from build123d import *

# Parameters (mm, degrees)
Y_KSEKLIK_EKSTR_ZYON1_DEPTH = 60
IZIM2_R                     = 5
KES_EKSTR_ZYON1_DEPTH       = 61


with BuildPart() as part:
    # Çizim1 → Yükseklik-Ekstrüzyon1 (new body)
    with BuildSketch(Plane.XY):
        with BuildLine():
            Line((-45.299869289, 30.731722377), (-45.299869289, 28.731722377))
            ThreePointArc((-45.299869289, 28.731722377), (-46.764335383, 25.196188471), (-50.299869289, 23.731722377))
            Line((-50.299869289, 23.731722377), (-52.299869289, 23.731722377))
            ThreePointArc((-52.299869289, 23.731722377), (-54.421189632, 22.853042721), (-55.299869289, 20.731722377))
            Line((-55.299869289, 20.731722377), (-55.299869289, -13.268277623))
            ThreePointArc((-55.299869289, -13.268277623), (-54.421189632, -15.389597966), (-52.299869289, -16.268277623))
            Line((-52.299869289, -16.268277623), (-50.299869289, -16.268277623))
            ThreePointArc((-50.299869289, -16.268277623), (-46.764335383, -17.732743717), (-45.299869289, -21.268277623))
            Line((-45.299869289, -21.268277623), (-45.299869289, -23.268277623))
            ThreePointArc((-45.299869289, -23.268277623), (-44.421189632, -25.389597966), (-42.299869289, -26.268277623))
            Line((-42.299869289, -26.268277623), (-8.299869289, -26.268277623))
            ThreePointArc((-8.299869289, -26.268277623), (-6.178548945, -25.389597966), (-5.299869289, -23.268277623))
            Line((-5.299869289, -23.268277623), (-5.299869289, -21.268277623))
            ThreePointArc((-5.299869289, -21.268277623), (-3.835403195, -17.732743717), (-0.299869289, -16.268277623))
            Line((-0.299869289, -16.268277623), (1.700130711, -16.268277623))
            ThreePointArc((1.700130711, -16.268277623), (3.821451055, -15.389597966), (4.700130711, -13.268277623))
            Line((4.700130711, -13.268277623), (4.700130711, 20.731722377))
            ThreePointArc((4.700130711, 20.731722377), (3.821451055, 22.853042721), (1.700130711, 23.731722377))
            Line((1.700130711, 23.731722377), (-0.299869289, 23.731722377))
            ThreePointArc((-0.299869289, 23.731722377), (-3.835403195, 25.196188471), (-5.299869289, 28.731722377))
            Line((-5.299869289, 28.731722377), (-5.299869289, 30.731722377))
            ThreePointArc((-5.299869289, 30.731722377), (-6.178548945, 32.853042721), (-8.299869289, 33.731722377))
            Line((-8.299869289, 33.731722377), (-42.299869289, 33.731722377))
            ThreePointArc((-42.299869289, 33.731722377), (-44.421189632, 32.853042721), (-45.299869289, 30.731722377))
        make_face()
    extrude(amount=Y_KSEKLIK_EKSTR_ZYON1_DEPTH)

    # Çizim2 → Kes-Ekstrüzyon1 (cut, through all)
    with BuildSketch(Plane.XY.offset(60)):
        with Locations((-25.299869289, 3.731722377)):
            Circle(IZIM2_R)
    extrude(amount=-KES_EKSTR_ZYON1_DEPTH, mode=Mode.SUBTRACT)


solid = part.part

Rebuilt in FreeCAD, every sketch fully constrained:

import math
import FreeCAD as App
import Part
import Sketcher
from FreeCAD import Vector

doc = App.newDocument("Part")
body = doc.addObject("PartDesign::Body", "Body")

# Sketch on XY plane
sketch1 = body.newObject("Sketcher::SketchObject", "Sketch")
sketch1.AttachmentSupport = (doc.getObject("XY_Plane"), [""])
sketch1.MapMode = "FlatFace"
sketch1.addGeometry(Part.LineSegment(Vector(-45.3, 30.7, 0), Vector(-45.3, 28.7, 0)), False)
sketch1.addGeometry(Part.ArcOfCircle(Part.Circle(Vector(-50.3, 28.7, 0), Vector(0, 0, 1), 5), math.radians(-90), math.radians(0)), False)
sketch1.addGeometry(Part.LineSegment(Vector(-50.3, 23.7, 0), Vector(-52.3, 23.7, 0)), False)
sketch1.addGeometry(Part.ArcOfCircle(Part.Circle(Vector(-52.3, 20.7, 0), Vector(0, 0, 1), 3), math.radians(90), math.radians(180)), False)
sketch1.addGeometry(Part.LineSegment(Vector(-55.3, 20.7, 0), Vector(-55.3, -13.3, 0)), False)
sketch1.addGeometry(Part.ArcOfCircle(Part.Circle(Vector(-52.3, -13.3, 0), Vector(0, 0, 1), 3), math.radians(-180), math.radians(-90)), False)
sketch1.addGeometry(Part.LineSegment(Vector(-52.3, -16.3, 0), Vector(-50.3, -16.3, 0)), False)
sketch1.addGeometry(Part.ArcOfCircle(Part.Circle(Vector(-50.3, -21.3, 0), Vector(0, 0, 1), 5), math.radians(0), math.radians(90)), False)
sketch1.addGeometry(Part.LineSegment(Vector(-45.3, -21.3, 0), Vector(-45.3, -23.3, 0)), False)
sketch1.addGeometry(Part.ArcOfCircle(Part.Circle(Vector(-42.3, -23.3, 0), Vector(0, 0, 1), 3), math.radians(-180), math.radians(-90)), False)
sketch1.addGeometry(Part.LineSegment(Vector(-42.3, -26.3, 0), Vector(-8.3, -26.3, 0)), False)
sketch1.addGeometry(Part.ArcOfCircle(Part.Circle(Vector(-8.3, -23.3, 0), Vector(0, 0, 1), 3), math.radians(-90), math.radians(0)), False)
sketch1.addGeometry(Part.LineSegment(Vector(-5.3, -23.3, 0), Vector(-5.3, -21.3, 0)), False)
sketch1.addGeometry(Part.ArcOfCircle(Part.Circle(Vector(-0.3, -21.3, 0), Vector(0, 0, 1), 5), math.radians(90), math.radians(180)), False)
sketch1.addGeometry(Part.LineSegment(Vector(-0.3, -16.3, 0), Vector(1.7, -16.3, 0)), False)
sketch1.addGeometry(Part.ArcOfCircle(Part.Circle(Vector(1.7, -13.3, 0), Vector(0, 0, 1), 3), math.radians(-90), math.radians(0)), False)
sketch1.addGeometry(Part.LineSegment(Vector(4.7, -13.3, 0), Vector(4.7, 20.7, 0)), False)
sketch1.addGeometry(Part.ArcOfCircle(Part.Circle(Vector(1.7, 20.7, 0), Vector(0, 0, 1), 3), math.radians(0), math.radians(90)), False)
sketch1.addGeometry(Part.LineSegment(Vector(1.7, 23.7, 0), Vector(-0.3, 23.7, 0)), False)
sketch1.addGeometry(Part.ArcOfCircle(Part.Circle(Vector(-0.3, 28.7, 0), Vector(0, 0, 1), 5), math.radians(180), math.radians(270)), False)
sketch1.addGeometry(Part.LineSegment(Vector(-5.3, 28.7, 0), Vector(-5.3, 30.7, 0)), False)
sketch1.addGeometry(Part.ArcOfCircle(Part.Circle(Vector(-8.3, 30.7, 0), Vector(0, 0, 1), 3), math.radians(0), math.radians(90)), False)
sketch1.addGeometry(Part.LineSegment(Vector(-8.3, 33.7, 0), Vector(-42.3, 33.7, 0)), False)
sketch1.addGeometry(Part.ArcOfCircle(Part.Circle(Vector(-42.3, 30.7, 0), Vector(0, 0, 1), 3), math.radians(90), math.radians(180)), False)
sketch1.addConstraint(Sketcher.Constraint("Tangent", 0, 2, 1, 2))
sketch1.addConstraint(Sketcher.Constraint("Tangent", 1, 1, 2, 1))
sketch1.addConstraint(Sketcher.Constraint("Tangent", 2, 2, 3, 1))
sketch1.addConstraint(Sketcher.Constraint("Tangent", 3, 2, 4, 1))
sketch1.addConstraint(Sketcher.Constraint("Tangent", 4, 2, 5, 1))
sketch1.addConstraint(Sketcher.Constraint("Tangent", 5, 2, 6, 1))
sketch1.addConstraint(Sketcher.Constraint("Tangent", 6, 2, 7, 2))
sketch1.addConstraint(Sketcher.Constraint("Tangent", 7, 1, 8, 1))
sketch1.addConstraint(Sketcher.Constraint("Tangent", 8, 2, 9, 1))
sketch1.addConstraint(Sketcher.Constraint("Tangent", 9, 2, 10, 1))
sketch1.addConstraint(Sketcher.Constraint("Tangent", 10, 2, 11, 1))
sketch1.addConstraint(Sketcher.Constraint("Tangent", 11, 2, 12, 1))
sketch1.addConstraint(Sketcher.Constraint("Tangent", 12, 2, 13, 2))
sketch1.addConstraint(Sketcher.Constraint("Tangent", 13, 1, 14, 1))
sketch1.addConstraint(Sketcher.Constraint("Tangent", 14, 2, 15, 1))
sketch1.addConstraint(Sketcher.Constraint("Tangent", 15, 2, 16, 1))
sketch1.addConstraint(Sketcher.Constraint("Tangent", 16, 2, 17, 1))
sketch1.addConstraint(Sketcher.Constraint("Tangent", 17, 2, 18, 1))
sketch1.addConstraint(Sketcher.Constraint("Tangent", 18, 2, 19, 2))
sketch1.addConstraint(Sketcher.Constraint("Tangent", 19, 1, 20, 1))
sketch1.addConstraint(Sketcher.Constraint("Tangent", 20, 2, 21, 1))
sketch1.addConstraint(Sketcher.Constraint("Tangent", 21, 2, 22, 1))
sketch1.addConstraint(Sketcher.Constraint("Tangent", 22, 2, 23, 1))
sketch1.addConstraint(Sketcher.Constraint("Tangent", 23, 2, 0, 1))
sketch1.addConstraint(Sketcher.Constraint("Vertical", 0))
sketch1.addConstraint(Sketcher.Constraint("Horizontal", 2))
sketch1.addConstraint(Sketcher.Constraint("Vertical", 4))
sketch1.addConstraint(Sketcher.Constraint("Horizontal", 6))
sketch1.addConstraint(Sketcher.Constraint("Vertical", 8))
sketch1.addConstraint(Sketcher.Constraint("Horizontal", 10))
sketch1.addConstraint(Sketcher.Constraint("Vertical", 12))
sketch1.addConstraint(Sketcher.Constraint("Horizontal", 14))
sketch1.addConstraint(Sketcher.Constraint("Vertical", 16))
sketch1.addConstraint(Sketcher.Constraint("Horizontal", 18))
sketch1.addConstraint(Sketcher.Constraint("Vertical", 20))
sketch1.addConstraint(Sketcher.Constraint("Horizontal", 22))
sketch1.addConstraint(Sketcher.Constraint("Equal", 3, 5))
sketch1.addConstraint(Sketcher.Constraint("Equal", 1, 7))
sketch1.addConstraint(Sketcher.Constraint("Equal", 5, 9))
sketch1.addConstraint(Sketcher.Constraint("Equal", 9, 11))
sketch1.addConstraint(Sketcher.Constraint("Equal", 7, 13))
sketch1.addConstraint(Sketcher.Constraint("Equal", 11, 15))
sketch1.addConstraint(Sketcher.Constraint("Equal", 15, 17))
sketch1.addConstraint(Sketcher.Constraint("Equal", 13, 19))
sketch1.addConstraint(Sketcher.Constraint("Equal", 17, 21))
sketch1.addConstraint(Sketcher.Constraint("Equal", 21, 23))
sketch1.addConstraint(Sketcher.Constraint("Horizontal", 7, 3, 13, 3))
sketch1.addConstraint(Sketcher.Constraint("Horizontal", 3, 3, 17, 3))
sketch1.addConstraint(Sketcher.Constraint("Vertical", 1, 3, 7, 3))
sketch1.addConstraint(Sketcher.Constraint("Vertical", 13, 3, 19, 3))
sketch1.addConstraint(Sketcher.Constraint("Equal", 6, 14))
sketch1.addConstraint(Sketcher.Constraint("Equal", 18, 0))
sketch1.addConstraint(Sketcher.Constraint("Equal", 22, 4))
sketch1.addConstraint(Sketcher.Constraint("Equal", 0, 8))
sketch1.addConstraint(Sketcher.Constraint("Radius", 1, 5.0))
sketch1.addConstraint(Sketcher.Constraint("Radius", 3, 3.0))
sketch1.addConstraint(Sketcher.Constraint("DistanceX", 2, 2, 2, 1, 2.0))
sketch1.addConstraint(Sketcher.Constraint("DistanceX", 10, 1, 10, 2, 34.0))
sketch1.addConstraint(Sketcher.Constraint("DistanceX", 1, 3, -1, 1, 50.299869))
sketch1.addConstraint(Sketcher.Constraint("DistanceY", -1, 1, 1, 3, 28.731722))
pad1 = body.newObject("PartDesign::Pad", "Pad")
pad1.Profile = sketch1
pad1.Length = 60

# Sketch on XY plane
sketch2 = body.newObject("Sketcher::SketchObject", "Sketch001")
sketch2.AttachmentSupport = (doc.getObject("XY_Plane"), [""])
sketch2.MapMode = "FlatFace"
sketch2.AttachmentOffset = App.Placement(Vector(0, 0, 60), App.Rotation())
sketch2.addGeometry(Part.Circle(Vector(-25, 4, 0), Vector(0, 0, 1), 5), False)
sketch2.addConstraint(Sketcher.Constraint("Diameter", 0, 10.0))
sketch2.addConstraint(Sketcher.Constraint("DistanceX", 0, 3, -1, 1, 25.299869))
sketch2.addConstraint(Sketcher.Constraint("DistanceY", -1, 1, 0, 3, 3.731722))
pocket1 = body.newObject("PartDesign::Pocket", "Pocket")
pocket1.Profile = sketch2
pocket1.Type = "ThroughAll"

doc.recompute()
